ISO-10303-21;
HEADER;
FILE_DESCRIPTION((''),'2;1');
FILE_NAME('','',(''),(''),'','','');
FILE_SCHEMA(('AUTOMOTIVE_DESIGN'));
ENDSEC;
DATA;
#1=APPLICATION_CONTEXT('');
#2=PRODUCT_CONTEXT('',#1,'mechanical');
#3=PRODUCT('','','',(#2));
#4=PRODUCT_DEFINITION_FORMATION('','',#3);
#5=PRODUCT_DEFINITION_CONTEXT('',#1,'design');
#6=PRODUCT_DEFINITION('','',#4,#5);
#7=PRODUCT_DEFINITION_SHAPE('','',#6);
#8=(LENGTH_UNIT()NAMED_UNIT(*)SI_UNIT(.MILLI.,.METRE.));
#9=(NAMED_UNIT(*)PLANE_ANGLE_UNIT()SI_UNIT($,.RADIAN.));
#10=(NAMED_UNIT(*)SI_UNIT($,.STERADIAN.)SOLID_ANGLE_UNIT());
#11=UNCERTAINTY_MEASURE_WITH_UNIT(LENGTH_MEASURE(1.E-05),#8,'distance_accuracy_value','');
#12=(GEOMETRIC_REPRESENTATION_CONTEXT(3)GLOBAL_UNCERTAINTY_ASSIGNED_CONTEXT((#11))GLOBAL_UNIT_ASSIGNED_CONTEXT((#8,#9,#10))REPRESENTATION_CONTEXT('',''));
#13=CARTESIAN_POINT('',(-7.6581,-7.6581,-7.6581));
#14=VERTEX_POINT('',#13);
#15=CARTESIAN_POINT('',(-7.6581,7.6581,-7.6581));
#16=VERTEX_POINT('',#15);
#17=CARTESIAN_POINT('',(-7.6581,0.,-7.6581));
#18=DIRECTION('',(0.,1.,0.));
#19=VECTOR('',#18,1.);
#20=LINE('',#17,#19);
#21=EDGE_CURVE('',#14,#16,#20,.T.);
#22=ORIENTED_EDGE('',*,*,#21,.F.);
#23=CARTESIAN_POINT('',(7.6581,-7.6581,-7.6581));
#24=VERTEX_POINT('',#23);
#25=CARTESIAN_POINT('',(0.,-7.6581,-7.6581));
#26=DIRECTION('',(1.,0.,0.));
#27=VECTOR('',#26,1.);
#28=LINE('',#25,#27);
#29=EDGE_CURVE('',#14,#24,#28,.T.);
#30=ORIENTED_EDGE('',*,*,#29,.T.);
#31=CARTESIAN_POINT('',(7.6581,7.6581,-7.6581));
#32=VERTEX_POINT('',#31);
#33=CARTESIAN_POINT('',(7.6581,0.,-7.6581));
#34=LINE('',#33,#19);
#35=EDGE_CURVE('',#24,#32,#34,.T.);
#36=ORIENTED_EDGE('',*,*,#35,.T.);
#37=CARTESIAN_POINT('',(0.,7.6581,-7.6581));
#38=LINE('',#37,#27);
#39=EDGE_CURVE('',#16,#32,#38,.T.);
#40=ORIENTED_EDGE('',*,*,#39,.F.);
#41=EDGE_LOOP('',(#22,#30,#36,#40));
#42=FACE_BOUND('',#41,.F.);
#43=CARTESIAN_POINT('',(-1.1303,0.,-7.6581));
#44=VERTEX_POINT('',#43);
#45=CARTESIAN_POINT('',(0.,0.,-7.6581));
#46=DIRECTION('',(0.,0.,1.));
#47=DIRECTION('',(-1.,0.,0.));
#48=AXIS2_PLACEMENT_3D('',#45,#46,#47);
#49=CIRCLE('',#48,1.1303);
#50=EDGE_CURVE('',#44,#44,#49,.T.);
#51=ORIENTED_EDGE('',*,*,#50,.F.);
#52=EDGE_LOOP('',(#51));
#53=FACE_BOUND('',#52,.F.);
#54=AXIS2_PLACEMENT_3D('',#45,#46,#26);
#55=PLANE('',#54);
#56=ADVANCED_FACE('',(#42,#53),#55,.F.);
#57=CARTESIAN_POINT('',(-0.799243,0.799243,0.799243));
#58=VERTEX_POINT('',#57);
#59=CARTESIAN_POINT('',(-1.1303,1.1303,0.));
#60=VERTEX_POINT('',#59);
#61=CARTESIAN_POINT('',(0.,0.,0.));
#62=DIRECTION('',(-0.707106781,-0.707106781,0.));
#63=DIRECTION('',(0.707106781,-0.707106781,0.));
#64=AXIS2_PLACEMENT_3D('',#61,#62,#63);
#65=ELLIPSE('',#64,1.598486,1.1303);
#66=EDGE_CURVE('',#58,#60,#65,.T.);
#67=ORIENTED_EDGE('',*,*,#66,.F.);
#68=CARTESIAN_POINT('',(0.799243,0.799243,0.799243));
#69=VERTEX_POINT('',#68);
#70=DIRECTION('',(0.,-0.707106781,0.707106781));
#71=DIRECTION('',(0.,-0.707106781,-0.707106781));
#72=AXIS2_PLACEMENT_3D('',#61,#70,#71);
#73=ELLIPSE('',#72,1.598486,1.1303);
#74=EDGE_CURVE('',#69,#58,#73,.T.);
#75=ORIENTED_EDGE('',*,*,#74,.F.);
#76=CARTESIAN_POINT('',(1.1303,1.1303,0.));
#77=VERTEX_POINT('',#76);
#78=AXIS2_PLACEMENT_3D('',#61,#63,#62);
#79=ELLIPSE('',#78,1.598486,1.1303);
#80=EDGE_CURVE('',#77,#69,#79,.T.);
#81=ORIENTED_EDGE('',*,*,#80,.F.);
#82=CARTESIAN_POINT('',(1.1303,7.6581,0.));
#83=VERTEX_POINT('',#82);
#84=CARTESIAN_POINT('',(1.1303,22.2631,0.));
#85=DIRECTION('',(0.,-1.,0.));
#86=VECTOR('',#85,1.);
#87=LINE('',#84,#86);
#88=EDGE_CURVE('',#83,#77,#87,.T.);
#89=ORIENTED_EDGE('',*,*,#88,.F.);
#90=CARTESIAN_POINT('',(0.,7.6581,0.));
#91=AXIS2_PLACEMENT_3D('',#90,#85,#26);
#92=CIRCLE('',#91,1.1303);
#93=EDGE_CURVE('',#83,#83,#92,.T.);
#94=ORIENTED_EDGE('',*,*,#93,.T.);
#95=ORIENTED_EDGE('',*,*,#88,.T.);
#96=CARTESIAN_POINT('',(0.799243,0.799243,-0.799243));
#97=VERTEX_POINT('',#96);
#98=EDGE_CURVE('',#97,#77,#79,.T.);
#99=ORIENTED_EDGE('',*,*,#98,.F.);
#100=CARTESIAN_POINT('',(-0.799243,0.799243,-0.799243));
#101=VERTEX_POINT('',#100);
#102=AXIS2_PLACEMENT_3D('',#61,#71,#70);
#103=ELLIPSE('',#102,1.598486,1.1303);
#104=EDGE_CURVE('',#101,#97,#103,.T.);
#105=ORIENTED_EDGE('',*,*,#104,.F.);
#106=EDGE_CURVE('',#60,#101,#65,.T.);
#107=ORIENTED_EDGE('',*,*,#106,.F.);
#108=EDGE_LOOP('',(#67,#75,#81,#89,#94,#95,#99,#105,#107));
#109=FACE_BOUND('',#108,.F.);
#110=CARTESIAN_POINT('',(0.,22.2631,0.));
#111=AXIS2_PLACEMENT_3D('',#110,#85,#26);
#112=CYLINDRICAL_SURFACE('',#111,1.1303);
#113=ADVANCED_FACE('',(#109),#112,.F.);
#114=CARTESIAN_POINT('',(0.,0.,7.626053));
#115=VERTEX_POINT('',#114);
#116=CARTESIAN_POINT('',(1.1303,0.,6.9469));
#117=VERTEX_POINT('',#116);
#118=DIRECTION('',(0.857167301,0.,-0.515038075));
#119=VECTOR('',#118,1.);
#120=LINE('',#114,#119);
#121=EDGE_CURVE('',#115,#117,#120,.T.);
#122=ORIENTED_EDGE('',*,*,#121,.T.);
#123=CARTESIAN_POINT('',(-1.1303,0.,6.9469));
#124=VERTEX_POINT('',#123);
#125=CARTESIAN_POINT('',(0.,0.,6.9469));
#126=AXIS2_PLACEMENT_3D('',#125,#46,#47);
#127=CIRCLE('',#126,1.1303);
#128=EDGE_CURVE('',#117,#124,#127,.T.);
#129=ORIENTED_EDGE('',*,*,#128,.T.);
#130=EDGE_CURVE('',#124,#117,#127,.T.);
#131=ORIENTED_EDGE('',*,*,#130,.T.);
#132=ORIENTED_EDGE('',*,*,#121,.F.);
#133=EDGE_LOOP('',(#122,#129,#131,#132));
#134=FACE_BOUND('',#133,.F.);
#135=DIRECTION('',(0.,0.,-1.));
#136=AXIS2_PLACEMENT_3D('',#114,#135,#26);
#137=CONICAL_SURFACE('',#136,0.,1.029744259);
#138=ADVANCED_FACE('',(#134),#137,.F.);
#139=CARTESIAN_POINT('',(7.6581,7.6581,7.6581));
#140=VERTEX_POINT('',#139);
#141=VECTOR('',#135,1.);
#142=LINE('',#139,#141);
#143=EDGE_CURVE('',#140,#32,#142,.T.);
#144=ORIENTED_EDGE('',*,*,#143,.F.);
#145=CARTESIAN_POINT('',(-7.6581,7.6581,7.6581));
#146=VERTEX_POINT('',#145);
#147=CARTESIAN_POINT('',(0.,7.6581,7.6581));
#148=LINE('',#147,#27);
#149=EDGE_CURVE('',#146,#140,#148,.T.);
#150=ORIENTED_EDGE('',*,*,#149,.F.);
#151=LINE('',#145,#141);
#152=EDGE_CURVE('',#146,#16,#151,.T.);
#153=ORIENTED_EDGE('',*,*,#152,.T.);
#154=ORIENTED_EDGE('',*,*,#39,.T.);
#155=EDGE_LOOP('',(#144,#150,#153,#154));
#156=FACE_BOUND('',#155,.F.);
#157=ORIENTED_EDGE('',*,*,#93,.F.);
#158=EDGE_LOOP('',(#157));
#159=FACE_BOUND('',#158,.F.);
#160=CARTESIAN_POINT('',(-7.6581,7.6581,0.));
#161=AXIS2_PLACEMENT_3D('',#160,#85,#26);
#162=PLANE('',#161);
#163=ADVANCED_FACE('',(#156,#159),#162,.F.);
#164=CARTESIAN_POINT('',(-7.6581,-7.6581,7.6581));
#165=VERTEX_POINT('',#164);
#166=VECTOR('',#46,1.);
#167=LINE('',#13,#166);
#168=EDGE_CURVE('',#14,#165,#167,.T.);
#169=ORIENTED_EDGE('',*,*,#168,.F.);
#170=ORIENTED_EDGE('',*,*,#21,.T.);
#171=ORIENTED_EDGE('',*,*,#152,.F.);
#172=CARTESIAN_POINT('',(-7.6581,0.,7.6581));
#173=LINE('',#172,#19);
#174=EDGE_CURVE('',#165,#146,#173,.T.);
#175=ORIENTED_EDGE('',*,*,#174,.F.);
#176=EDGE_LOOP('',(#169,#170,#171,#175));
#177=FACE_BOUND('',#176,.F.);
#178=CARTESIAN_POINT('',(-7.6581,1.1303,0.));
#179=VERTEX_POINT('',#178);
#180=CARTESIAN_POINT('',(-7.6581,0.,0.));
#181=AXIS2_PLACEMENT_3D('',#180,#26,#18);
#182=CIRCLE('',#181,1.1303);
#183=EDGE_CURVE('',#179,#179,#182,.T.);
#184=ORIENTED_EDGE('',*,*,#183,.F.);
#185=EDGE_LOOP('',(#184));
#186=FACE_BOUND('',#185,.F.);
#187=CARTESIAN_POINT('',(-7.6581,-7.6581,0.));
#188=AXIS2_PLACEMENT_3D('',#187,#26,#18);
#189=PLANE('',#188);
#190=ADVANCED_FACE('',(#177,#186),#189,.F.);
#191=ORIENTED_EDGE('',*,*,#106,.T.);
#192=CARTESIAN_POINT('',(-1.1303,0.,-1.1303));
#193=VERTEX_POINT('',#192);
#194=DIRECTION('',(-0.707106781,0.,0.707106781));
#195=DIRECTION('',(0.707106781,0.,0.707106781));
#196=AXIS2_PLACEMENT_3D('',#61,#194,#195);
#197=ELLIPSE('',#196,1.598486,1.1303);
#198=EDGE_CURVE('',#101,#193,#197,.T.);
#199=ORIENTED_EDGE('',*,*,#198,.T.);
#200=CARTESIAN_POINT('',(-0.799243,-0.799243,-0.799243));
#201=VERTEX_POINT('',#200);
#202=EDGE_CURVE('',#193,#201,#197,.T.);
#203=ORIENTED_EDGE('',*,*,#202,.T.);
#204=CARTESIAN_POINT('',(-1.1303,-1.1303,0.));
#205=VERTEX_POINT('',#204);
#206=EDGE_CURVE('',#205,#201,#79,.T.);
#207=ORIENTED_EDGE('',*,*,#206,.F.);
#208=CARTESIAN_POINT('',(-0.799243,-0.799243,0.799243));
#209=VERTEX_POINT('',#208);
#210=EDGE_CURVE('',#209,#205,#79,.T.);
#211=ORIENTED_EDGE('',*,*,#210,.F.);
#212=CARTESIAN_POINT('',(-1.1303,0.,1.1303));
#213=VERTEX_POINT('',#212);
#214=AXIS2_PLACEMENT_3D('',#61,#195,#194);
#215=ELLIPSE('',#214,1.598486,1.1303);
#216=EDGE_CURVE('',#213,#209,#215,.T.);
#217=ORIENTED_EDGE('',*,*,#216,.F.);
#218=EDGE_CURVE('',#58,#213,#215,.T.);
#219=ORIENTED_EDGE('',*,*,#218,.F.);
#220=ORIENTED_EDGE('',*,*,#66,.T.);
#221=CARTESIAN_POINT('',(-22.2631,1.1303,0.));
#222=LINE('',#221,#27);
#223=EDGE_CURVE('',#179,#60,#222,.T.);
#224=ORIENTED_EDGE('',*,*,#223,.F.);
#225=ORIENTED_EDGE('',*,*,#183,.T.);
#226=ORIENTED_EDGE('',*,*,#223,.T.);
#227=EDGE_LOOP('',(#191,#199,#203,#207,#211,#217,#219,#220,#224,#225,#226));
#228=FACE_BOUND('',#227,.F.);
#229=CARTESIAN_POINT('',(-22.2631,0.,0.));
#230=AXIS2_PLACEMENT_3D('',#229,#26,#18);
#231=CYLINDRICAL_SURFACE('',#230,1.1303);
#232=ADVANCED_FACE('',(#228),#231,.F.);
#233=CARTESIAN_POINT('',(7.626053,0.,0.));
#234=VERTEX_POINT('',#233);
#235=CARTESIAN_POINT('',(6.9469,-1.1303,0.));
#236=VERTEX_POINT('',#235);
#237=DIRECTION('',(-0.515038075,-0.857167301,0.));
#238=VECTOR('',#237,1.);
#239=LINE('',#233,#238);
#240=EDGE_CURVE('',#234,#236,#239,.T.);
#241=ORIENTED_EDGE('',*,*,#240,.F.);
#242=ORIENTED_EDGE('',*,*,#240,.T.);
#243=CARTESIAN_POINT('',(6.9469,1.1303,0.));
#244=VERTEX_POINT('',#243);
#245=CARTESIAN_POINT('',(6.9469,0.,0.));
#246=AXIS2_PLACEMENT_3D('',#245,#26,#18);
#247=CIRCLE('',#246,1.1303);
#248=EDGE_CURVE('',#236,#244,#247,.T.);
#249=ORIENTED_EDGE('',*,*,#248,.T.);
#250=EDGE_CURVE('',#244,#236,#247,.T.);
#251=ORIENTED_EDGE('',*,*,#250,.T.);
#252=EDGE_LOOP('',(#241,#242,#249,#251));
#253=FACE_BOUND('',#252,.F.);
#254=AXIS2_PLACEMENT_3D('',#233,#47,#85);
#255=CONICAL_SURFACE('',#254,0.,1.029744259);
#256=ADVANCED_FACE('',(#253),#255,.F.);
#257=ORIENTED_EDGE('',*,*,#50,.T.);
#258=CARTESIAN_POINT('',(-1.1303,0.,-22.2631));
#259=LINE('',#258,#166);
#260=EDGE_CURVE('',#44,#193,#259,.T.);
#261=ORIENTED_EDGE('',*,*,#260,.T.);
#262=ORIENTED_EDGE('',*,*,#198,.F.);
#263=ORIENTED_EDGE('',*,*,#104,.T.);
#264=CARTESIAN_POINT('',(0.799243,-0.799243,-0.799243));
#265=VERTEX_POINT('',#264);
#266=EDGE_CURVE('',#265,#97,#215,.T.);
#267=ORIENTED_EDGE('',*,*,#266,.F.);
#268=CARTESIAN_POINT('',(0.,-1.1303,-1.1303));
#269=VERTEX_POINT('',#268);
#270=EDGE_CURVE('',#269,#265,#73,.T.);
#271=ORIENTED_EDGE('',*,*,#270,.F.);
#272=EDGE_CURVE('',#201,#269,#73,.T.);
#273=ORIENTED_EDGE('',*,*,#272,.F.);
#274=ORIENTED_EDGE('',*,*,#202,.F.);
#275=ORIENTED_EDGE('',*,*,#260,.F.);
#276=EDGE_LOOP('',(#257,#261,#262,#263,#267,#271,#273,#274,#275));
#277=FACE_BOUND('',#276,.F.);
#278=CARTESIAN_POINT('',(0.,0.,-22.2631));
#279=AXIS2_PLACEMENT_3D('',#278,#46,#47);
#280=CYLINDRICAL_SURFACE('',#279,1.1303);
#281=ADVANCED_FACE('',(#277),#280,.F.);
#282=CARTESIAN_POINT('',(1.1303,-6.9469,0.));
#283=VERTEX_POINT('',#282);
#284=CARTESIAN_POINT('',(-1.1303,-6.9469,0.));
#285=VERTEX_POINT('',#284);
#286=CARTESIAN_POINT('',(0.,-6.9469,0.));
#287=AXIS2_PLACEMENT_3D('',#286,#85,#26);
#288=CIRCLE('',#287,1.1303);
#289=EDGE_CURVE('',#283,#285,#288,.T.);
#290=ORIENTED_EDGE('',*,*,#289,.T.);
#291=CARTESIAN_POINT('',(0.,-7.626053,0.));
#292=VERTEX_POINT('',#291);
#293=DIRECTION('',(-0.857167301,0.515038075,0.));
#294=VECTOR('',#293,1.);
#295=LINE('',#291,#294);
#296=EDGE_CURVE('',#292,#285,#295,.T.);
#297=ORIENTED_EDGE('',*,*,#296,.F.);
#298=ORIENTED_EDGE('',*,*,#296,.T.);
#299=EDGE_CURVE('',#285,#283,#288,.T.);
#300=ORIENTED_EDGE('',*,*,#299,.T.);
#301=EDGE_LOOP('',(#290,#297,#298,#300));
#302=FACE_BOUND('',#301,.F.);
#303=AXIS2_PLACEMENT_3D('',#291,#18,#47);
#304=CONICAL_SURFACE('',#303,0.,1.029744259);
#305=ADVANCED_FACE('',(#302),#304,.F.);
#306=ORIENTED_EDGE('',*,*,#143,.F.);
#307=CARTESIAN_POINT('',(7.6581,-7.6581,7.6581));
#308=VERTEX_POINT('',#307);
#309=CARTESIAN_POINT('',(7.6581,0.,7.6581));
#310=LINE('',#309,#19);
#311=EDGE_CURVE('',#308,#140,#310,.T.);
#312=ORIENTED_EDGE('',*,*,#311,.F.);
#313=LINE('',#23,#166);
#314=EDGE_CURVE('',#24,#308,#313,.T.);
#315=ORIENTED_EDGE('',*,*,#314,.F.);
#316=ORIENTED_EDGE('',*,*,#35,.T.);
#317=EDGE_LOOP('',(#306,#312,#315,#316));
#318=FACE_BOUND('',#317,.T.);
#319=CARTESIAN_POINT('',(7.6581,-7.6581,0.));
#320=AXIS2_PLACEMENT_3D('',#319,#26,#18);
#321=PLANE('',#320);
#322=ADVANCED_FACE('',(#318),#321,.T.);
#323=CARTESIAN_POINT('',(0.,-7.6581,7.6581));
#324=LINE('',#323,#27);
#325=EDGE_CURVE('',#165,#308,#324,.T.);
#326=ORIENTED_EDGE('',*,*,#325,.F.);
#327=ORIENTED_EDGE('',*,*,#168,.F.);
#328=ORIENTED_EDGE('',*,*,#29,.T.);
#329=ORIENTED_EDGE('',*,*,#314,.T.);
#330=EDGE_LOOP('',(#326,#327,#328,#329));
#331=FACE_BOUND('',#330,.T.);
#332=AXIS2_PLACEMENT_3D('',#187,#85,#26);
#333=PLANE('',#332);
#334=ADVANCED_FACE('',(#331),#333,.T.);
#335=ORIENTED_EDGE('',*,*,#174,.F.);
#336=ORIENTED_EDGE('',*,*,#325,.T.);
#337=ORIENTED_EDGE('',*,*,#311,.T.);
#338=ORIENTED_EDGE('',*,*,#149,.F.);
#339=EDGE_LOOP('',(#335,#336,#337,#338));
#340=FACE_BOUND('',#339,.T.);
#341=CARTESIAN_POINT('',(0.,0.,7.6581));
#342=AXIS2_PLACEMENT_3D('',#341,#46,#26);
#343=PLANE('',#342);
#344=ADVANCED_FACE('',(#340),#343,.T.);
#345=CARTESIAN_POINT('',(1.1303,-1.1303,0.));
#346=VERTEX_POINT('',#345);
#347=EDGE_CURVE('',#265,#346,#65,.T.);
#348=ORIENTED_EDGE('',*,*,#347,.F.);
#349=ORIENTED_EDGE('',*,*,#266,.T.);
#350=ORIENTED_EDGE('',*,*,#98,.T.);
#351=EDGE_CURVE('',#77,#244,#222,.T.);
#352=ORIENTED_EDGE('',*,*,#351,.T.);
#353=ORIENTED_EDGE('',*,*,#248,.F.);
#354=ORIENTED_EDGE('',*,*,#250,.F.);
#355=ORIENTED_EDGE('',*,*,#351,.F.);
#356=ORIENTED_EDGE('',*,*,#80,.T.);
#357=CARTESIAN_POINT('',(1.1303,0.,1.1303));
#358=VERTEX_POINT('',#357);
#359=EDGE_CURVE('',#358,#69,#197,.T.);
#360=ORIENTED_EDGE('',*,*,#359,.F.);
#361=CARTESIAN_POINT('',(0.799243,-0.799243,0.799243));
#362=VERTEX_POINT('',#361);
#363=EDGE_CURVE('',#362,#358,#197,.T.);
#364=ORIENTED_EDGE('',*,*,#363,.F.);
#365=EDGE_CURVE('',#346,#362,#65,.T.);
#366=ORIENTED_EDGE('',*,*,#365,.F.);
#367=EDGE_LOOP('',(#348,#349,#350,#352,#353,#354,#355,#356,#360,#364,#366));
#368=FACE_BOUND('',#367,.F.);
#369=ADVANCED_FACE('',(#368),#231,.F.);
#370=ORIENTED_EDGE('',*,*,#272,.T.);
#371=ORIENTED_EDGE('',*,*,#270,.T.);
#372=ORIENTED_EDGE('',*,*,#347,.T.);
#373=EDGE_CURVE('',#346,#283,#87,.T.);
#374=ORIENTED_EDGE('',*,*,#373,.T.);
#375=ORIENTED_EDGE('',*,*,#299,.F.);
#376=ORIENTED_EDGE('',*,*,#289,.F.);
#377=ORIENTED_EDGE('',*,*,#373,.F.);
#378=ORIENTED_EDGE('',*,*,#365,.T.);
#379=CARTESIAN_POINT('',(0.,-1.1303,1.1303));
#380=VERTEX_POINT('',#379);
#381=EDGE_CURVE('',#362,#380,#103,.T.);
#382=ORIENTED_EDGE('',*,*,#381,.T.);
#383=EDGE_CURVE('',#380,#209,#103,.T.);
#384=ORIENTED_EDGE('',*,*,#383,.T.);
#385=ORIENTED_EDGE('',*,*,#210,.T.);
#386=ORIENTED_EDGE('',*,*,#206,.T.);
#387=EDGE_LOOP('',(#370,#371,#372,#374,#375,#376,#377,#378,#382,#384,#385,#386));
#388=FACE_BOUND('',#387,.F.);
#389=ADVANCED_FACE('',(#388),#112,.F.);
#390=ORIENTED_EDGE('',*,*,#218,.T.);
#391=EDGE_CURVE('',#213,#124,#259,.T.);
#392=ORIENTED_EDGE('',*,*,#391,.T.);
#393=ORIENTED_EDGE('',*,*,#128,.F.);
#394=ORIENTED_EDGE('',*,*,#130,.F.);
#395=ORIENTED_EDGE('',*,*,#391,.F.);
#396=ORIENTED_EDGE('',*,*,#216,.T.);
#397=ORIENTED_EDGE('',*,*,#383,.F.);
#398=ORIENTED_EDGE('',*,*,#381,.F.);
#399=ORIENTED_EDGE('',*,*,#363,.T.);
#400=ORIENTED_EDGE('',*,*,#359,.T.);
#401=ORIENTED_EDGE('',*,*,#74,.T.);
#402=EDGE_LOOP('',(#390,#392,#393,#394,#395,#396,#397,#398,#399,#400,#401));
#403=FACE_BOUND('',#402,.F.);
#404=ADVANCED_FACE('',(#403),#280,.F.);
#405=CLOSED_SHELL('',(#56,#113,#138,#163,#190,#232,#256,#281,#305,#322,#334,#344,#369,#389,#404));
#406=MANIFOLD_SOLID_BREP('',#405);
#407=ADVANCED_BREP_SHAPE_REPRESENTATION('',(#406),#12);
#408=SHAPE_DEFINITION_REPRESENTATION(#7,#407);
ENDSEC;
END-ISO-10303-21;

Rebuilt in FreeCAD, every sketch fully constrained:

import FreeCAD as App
import Part
import Sketcher
from FreeCAD import Vector
Q = App.Units.Quantity

doc = App.newDocument("Part")
body = doc.addObject("PartDesign::Body", "Body")

# Sketch on XY plane
sketch1 = body.newObject("Sketcher::SketchObject", "Sketch")
sketch1.AttachmentSupport = (doc.getObject("XY_Plane"), [""])
sketch1.MapMode = "FlatFace"
sketch1.addGeometry([
    Part.LineSegment(Vector(-8, 8, 0), Vector(-8, -8, 0)),
    Part.LineSegment(Vector(-8, -8, 0), Vector(8, -8, 0)),
    Part.LineSegment(Vector(8, -8, 0), Vector(8, 8, 0)),
    Part.LineSegment(Vector(8, 8, 0), Vector(-8, 8, 0)),
], False)
sketch1.addConstraint([
    Sketcher.Constraint("Coincident", 0, 2, 1, 1),
    Sketcher.Constraint("Coincident", 1, 2, 2, 1),
    Sketcher.Constraint("Coincident", 2, 2, 3, 1),
    Sketcher.Constraint("Coincident", 3, 2, 0, 1),
    Sketcher.Constraint("Vertical", 0),
    Sketcher.Constraint("Horizontal", 1),
    Sketcher.Constraint("Vertical", 2),
    Sketcher.Constraint("Horizontal", 3),
    Sketcher.Constraint("Symmetric", 0, 2, 2, 2, -1, 1),
    Sketcher.Constraint("Equal", 3, 0),
    Sketcher.Constraint("DistanceX", 1, 1, 1, 2, Q("0.603 in")),
])
pad1 = body.newObject("PartDesign::Pad", "Pad")
pad1.Profile = sketch1
pad1.Type = "TwoLengths"
pad1.Length = Q("0.3015 in")
pad1.Length2 = Q("0.3015 in")

# Sketch on XZ plane
sketch2 = body.newObject("Sketcher::SketchObject", "Sketch001")
sketch2.AttachmentSupport = (doc.getObject("XZ_Plane"), [""])
sketch2.MapMode = "FlatFace"
sketch2.AttachmentOffset = App.Placement(Vector(0, 0, -0.3015 * 25.4), App.Rotation())
sketch2.addGeometry(Part.Circle(Vector(0, 0, 0), Vector(0, 0, 1), 1.1), False)
sketch2.addConstraint([
    Sketcher.Constraint("Coincident", 0, 3, -1, 1),
    Sketcher.Constraint("Diameter", 0, Q("0.089 in")),
])
doc.recompute()
hole = body.newObject("PartDesign::Hole", "Hole")
hole.Profile = sketch2
hole.ThreadType = "None"
hole.Diameter = Q("0.089 in")
hole.DepthType = "Dimension"
hole.Depth = Q("0.575 in")
hole.DrillPoint = "Angled"
hole.DrillPointAngle = 118
hole.Reversed = True

# Sketch on XY plane
sketch3 = body.newObject("Sketcher::SketchObject", "Sketch002")
sketch3.AttachmentSupport = (doc.getObject("XY_Plane"), [""])
sketch3.MapMode = "FlatFace"
sketch3.AttachmentOffset = App.Placement(Vector(0, 0, -0.3015 * 25.4), App.Rotation())
sketch3.addGeometry(Part.Circle(Vector(0, 0, 0), Vector(0, 0, 1), 1.1), False)
sketch3.addConstraint([
    Sketcher.Constraint("Coincident", 0, 3, -1, 1),
    Sketcher.Constraint("Diameter", 0, Q("0.089 in")),
])
doc.recompute()
hole2 = body.newObject("PartDesign::Hole", "Hole001")
hole2.Profile = sketch3
hole2.ThreadType = "None"
hole2.Diameter = Q("0.089 in")
hole2.DepthType = "Dimension"
hole2.Depth = Q("0.575 in")
hole2.DrillPoint = "Angled"
hole2.DrillPointAngle = 118
hole2.Reversed = True

# Sketch on YZ plane
sketch4 = body.newObject("Sketcher::SketchObject", "Sketch003")
sketch4.AttachmentSupport = (doc.getObject("YZ_Plane"), [""])
sketch4.MapMode = "FlatFace"
sketch4.AttachmentOffset = App.Placement(Vector(0, 0, -0.3015 * 25.4), App.Rotation())
sketch4.addGeometry(Part.Circle(Vector(0, 0, 0), Vector(0, 0, 1), 1.1), False)
sketch4.addConstraint([
    Sketcher.Constraint("Coincident", 0, 3, -1, 1),
    Sketcher.Constraint("Diameter", 0, Q("0.089 in")),
])
doc.recompute()
hole3 = body.newObject("PartDesign::Hole", "Hole002")
hole3.Profile = sketch4
hole3.ThreadType = "None"
hole3.Diameter = Q("0.089 in")
hole3.DepthType = "Dimension"
hole3.Depth = Q("0.575 in")
hole3.DrillPoint = "Angled"
hole3.DrillPointAngle = 118
hole3.Reversed = True

doc.recompute()
